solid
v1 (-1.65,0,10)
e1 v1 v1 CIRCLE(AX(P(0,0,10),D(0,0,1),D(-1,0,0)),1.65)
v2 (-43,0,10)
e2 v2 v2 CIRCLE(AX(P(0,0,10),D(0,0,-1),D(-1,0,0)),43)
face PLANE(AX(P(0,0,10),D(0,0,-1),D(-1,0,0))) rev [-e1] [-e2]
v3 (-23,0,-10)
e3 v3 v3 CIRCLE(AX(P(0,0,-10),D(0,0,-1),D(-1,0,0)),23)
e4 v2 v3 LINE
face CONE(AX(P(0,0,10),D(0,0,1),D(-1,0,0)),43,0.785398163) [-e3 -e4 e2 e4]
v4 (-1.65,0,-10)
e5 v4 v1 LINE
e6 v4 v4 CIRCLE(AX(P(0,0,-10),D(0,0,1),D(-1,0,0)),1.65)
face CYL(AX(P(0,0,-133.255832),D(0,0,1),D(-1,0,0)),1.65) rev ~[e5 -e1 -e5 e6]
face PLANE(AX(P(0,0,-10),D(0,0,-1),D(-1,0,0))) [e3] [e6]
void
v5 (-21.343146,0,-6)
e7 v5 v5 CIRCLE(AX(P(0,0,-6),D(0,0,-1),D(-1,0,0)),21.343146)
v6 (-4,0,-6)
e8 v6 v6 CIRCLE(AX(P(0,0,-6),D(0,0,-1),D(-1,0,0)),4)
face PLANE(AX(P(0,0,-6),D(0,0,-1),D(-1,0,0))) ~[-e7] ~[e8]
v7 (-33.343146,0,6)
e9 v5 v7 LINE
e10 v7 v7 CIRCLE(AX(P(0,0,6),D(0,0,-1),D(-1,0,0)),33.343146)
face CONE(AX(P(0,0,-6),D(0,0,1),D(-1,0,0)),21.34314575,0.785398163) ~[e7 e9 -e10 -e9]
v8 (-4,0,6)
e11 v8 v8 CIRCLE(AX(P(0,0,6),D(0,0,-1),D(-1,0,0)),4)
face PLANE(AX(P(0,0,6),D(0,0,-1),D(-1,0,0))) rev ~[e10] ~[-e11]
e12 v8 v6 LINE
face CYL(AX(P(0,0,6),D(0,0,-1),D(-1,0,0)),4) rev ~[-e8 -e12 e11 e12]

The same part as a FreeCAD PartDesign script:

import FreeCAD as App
import Part
import Sketcher
from FreeCAD import Vector

doc = App.newDocument("Part")
body = doc.addObject("PartDesign::Body", "Body")

sketch1 = body.newObject("Sketcher::SketchObject", "Sketch")
sketch1.AttachmentSupport = (doc.getObject("XZ_Plane"), [""])
sketch1.MapMode = "FlatFace"
sketch1.addGeometry([
    Part.LineSegment(Vector(0, 10, 0), Vector(-43, 10, 0)),
    Part.LineSegment(Vector(-43, 10, 0), Vector(-23, -10, 0)),
    Part.LineSegment(Vector(-23, -10, 0), Vector(0, -10, 0)),
    Part.LineSegment(Vector(0, -10, 0), Vector(0, 10, 0)),
    Part.LineSegment(Vector(-4, -6, 0), Vector(-21.343146, -6, 0)),
    Part.LineSegment(Vector(-21.343146, -6, 0), Vector(-33.343146, 6, 0)),
    Part.LineSegment(Vector(-33.343146, 6, 0), Vector(-4, 6, 0)),
    Part.LineSegment(Vector(-4, 6, 0), Vector(-4, -6, 0)),
], False)
sketch1.addConstraint([
    Sketcher.Constraint("Coincident", 0, 2, 1, 1),
    Sketcher.Constraint("Coincident", 1, 2, 2, 1),
    Sketcher.Constraint("Coincident", 2, 2, 3, 1),
    Sketcher.Constraint("Coincident", 3, 2, 0, 1),
    Sketcher.Constraint("Coincident", 4, 2, 5, 1),
    Sketcher.Constraint("Coincident", 5, 2, 6, 1),
    Sketcher.Constraint("Coincident", 6, 2, 7, 1),
    Sketcher.Constraint("Coincident", 7, 2, 4, 1),
    Sketcher.Constraint("Horizontal", 0),
    Sketcher.Constraint("Horizontal", 2),
    Sketcher.Constraint("Vertical", 3),
    Sketcher.Constraint("Horizontal", 4),
    Sketcher.Constraint("Horizontal", 6),
    Sketcher.Constraint("Vertical", 7),
    Sketcher.Constraint("Symmetric", 2, 2, 3, 2, -1, 1),
    Sketcher.Constraint("Parallel", 1, 5),
    Sketcher.Constraint("DistanceX", 0, 2, 0, 1, 43.0),
    Sketcher.Constraint("DistanceX", 2, 1, 2, 2, 23.0),
    Sketcher.Constraint("DistanceY", 3, 1, 3, 2, 20.0),
    Sketcher.Constraint("DistanceY", 7, 2, 7, 1, 12.0),
    Sketcher.Constraint("DistanceY", 4, 2, -1, 1, 6.0),
    Sketcher.Constraint("DistanceX", 6, 2, -1, 1, 4.0),
    Sketcher.Constraint("DistanceX", 4, 2, 4, 1, 17.343146),
])
revolution = body.newObject("PartDesign::Revolution", "Revolution")
revolution.Profile = sketch1
revolution.ReferenceAxis = (sketch1, ["V_Axis"])
revolution.Angle = 360

sketch2 = body.newObject("Sketcher::SketchObject", "Sketch001")
sketch2.AttachmentSupport = (doc.getObject("XY_Plane"), [""])
sketch2.MapMode = "FlatFace"
sketch2.AttachmentOffset = App.Placement(Vector(0, 0, -10), App.Rotation())
sketch2.addGeometry(Part.Circle(Vector(0, 0, 0), Vector(0, 0, 1), 1.65), False)
sketch2.addConstraint([
    Sketcher.Constraint("Coincident", 0, 3, -1, 1),
    Sketcher.Constraint("Diameter", 0, 3.3),
])
doc.recompute()
hole = body.newObject("PartDesign::Hole", "Hole")
hole.Profile = sketch2
hole.ThreadType = "None"
hole.Diameter = 3.3
hole.DepthType = "ThroughAll"
hole.Reversed = True

doc.recompute()
